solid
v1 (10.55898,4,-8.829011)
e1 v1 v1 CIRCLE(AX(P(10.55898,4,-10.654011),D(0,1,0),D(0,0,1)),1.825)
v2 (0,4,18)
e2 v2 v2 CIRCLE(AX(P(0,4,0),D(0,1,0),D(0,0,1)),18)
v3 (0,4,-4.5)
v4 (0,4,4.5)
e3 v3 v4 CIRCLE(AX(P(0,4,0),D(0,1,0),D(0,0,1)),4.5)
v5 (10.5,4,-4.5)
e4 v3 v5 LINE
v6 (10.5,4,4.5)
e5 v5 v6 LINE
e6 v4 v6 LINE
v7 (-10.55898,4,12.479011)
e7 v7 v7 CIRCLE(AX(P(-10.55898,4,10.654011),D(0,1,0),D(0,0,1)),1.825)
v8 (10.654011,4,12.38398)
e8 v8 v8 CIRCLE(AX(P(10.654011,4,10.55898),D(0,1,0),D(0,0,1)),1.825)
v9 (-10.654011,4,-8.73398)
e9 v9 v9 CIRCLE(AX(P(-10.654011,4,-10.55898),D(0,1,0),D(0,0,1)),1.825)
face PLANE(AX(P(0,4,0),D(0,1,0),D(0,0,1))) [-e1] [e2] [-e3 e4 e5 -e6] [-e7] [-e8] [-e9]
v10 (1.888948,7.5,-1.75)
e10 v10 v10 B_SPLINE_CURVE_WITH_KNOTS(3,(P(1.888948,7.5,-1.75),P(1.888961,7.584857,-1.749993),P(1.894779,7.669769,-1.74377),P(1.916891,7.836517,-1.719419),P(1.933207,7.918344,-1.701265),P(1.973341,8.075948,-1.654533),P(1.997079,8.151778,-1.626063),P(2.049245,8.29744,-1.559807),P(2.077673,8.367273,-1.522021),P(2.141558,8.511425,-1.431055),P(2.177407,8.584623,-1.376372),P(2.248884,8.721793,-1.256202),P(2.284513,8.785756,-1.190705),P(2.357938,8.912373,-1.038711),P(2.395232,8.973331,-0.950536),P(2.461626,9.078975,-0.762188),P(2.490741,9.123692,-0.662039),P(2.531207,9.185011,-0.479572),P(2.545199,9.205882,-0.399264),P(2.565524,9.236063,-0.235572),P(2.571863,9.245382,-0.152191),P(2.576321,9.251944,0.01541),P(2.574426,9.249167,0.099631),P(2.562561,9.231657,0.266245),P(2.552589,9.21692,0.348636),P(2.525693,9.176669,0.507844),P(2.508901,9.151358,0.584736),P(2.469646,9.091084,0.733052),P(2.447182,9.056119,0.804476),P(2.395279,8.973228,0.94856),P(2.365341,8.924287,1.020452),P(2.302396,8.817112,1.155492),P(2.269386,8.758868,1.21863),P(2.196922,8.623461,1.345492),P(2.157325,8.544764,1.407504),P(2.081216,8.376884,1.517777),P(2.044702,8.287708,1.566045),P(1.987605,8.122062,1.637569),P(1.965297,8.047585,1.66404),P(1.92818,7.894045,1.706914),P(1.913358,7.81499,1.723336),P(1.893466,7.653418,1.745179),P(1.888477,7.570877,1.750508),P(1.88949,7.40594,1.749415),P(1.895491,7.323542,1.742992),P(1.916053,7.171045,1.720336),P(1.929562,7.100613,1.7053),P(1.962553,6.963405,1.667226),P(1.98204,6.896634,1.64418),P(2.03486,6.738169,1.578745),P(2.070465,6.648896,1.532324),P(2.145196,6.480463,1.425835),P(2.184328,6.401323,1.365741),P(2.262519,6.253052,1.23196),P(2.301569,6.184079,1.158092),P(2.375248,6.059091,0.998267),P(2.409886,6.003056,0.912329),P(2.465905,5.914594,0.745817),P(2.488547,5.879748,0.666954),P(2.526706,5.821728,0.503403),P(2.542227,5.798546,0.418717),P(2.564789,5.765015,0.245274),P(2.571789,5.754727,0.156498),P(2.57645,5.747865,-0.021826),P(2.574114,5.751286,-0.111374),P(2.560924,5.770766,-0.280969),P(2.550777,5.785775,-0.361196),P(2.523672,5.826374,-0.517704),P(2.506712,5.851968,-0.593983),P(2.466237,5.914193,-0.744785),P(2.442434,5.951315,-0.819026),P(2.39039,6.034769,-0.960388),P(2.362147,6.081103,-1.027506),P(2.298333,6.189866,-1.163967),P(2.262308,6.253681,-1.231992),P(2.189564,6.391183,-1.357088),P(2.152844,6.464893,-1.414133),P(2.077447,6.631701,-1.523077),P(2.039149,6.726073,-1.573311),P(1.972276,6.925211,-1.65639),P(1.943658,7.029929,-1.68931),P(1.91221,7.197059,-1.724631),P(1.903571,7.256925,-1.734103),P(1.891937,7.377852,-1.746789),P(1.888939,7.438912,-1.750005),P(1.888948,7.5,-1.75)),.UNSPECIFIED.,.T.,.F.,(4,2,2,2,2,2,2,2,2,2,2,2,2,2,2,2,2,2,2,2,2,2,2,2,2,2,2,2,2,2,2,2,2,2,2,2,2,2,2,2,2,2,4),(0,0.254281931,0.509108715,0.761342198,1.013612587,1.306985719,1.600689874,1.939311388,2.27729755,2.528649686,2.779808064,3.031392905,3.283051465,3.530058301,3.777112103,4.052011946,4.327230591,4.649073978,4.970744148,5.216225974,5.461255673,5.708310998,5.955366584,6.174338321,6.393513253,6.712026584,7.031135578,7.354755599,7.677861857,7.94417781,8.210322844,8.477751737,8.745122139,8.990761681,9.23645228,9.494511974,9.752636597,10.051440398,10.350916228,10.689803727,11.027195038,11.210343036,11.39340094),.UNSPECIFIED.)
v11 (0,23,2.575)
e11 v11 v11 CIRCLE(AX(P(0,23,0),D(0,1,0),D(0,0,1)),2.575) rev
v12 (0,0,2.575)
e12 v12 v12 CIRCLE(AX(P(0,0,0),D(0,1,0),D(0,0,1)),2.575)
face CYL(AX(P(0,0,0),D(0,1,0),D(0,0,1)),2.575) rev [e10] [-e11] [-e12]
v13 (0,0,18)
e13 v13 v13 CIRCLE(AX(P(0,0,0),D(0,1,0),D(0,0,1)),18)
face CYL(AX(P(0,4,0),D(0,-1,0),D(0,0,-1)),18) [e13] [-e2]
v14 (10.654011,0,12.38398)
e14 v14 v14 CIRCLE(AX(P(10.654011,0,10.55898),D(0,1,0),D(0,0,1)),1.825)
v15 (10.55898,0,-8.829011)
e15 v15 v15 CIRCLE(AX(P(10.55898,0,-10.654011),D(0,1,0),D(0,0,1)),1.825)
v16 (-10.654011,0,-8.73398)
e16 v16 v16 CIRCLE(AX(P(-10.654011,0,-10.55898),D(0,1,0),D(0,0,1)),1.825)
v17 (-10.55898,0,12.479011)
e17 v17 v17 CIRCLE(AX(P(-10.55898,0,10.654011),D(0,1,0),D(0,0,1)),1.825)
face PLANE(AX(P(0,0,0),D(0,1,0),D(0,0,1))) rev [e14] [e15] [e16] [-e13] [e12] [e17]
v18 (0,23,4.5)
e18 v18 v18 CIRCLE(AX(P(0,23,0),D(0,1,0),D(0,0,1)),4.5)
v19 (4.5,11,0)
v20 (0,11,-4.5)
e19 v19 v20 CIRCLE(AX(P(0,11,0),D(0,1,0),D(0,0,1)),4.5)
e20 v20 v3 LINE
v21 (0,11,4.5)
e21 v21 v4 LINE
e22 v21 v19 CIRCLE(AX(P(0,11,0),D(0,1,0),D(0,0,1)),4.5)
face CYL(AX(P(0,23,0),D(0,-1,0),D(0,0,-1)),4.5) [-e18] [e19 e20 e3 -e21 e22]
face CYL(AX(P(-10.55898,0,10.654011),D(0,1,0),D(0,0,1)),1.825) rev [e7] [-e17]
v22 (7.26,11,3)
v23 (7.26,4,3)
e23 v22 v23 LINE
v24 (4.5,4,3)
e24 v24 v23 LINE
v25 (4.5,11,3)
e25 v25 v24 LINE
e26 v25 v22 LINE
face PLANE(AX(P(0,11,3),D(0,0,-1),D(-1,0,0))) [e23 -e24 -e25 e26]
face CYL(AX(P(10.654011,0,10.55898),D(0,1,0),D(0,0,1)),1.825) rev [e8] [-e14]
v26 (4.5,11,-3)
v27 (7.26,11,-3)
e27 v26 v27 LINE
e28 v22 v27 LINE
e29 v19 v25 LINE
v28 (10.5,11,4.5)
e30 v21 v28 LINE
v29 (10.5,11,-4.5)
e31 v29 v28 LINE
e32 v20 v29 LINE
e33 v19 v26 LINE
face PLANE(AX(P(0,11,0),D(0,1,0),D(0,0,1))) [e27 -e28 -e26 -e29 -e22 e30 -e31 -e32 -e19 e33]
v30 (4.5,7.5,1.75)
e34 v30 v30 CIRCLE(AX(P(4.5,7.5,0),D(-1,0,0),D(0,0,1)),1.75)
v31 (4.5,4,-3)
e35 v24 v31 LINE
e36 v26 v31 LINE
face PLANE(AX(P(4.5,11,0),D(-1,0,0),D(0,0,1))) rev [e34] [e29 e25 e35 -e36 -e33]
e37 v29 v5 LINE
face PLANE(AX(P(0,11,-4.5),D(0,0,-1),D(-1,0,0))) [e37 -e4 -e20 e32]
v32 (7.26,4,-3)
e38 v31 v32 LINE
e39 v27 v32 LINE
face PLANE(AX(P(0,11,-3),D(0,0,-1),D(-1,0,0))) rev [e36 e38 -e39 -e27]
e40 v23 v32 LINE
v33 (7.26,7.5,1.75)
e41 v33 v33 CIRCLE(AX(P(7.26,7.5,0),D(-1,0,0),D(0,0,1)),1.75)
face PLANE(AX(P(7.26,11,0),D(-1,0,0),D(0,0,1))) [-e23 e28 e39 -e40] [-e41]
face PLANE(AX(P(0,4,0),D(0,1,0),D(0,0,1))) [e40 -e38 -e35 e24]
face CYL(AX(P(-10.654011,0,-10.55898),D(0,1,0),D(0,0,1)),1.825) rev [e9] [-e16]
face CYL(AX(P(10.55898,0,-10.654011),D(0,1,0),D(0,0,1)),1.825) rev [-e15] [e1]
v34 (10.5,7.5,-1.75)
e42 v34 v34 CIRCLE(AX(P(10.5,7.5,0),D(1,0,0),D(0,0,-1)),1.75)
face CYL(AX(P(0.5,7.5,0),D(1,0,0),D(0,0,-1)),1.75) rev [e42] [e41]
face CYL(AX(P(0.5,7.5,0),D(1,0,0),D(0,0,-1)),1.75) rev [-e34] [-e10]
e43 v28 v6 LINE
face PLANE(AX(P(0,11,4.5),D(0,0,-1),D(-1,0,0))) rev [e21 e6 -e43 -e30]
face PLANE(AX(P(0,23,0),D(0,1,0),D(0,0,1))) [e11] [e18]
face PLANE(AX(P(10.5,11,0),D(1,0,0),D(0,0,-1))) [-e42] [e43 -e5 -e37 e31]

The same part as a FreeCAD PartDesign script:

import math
import FreeCAD as App
import Part
import Sketcher

V = App.Vector


def add_polygon(sketch, points):
    """Adds a closed chain of lines whose ends are joined by coincident constraints."""
    first, n = sketch.GeometryCount, len(points)
    for a, b in zip(points, points[1:] + points[:1]):
        sketch.addGeometry(Part.LineSegment(App.Vector(*a, 0), App.Vector(*b, 0)), False)
    for i in range(n):
        sketch.addConstraint(Sketcher.Constraint("Coincident", first + i, 2, first + (i + 1) % n, 1))

doc = App.newDocument("Part")
body = doc.addObject("PartDesign::Body", "Body")

# Sketch on XZ plane
sketch1 = doc.addObject("Sketcher::SketchObject", "Sketch")
body.addObject(sketch1)
sketch1.AttachmentSupport = (doc.XZ_Plane, [""])
sketch1.MapMode = "FlatFace"
sketch1.addGeometry(Part.Circle(V(0, 0, 0), V(0, 0, 1), 18), False)
sketch1.addConstraint([
    Sketcher.Constraint("Coincident", 0, 3, -1, 1),
    Sketcher.Constraint("Diameter", 0, 36.0),
])
pad1 = doc.addObject("PartDesign::Pad", "Pad")
body.addObject(pad1)
pad1.Profile = sketch1
pad1.Length = 4
pad1.Reversed = True

# Sketch on XZ plane
sketch2 = doc.addObject("Sketcher::SketchObject", "Sketch001")
body.addObject(sketch2)
sketch2.AttachmentSupport = (doc.XZ_Plane, [""])
sketch2.MapMode = "FlatFace"
sketch2.AttachmentOffset = App.Placement(V(0, 0, -4), App.Rotation())
sketch2.addGeometry([
    Part.Circle(V(-10.7, -10.6, 0), V(0, 0, 1), 1.8),  # 0
    Part.Circle(V(10.6, -10.7, 0), V(0, 0, 1), 1.8),  # 1
    Part.Circle(V(10.7, 10.6, 0), V(0, 0, 1), 1.8),  # 2
    Part.Circle(V(0, 0, 0), V(0, 0, 1), 2.6),  # 3
    Part.Circle(V(-10.6, 10.7, 0), V(0, 0, 1), 1.8),  # 4
], False)
sketch2.addConstraint([
    Sketcher.Constraint("Coincident", 3, 3, -1, 1),
    Sketcher.Constraint("Equal", 0, 1),
    Sketcher.Constraint("Equal", 1, 2),
    Sketcher.Constraint("Equal", 2, 4),
    Sketcher.Constraint("Symmetric", 0, 3, 2, 3, -1, 1),
    Sketcher.Constraint("Symmetric", 1, 3, 4, 3, -1, 1),
    Sketcher.Constraint("Diameter", 0, 3.65),
    Sketcher.Constraint("Diameter", 3, 5.15),
    Sketcher.Constraint("DistanceX", 0, 3, -1, 1, 10.654011),
    Sketcher.Constraint("DistanceY", 0, 3, -1, 1, 10.55898),
    Sketcher.Constraint("DistanceX", -1, 1, 1, 3, 10.55898),
    Sketcher.Constraint("DistanceY", 1, 3, -1, 1, 10.654011),
])
pocket1 = doc.addObject("PartDesign::Pocket", "Pocket")
body.addObject(pocket1)
pocket1.Profile = sketch2
pocket1.Type = "ThroughAll"
pocket1.Reversed = True

# Sketch on XZ plane
sketch3 = doc.addObject("Sketcher::SketchObject", "Sketch002")
body.addObject(sketch3)
sketch3.AttachmentSupport = (doc.XZ_Plane, [""])
sketch3.MapMode = "FlatFace"
sketch3.AttachmentOffset = App.Placement(V(0, 0, -23), App.Rotation())
sketch3.addGeometry([
    Part.Circle(V(0, 0, 0), V(0, 0, 1), 4.5),
    Part.Circle(V(0, 0, 0), V(0, 0, 1), 2.6),
], False)
sketch3.addConstraint([
    Sketcher.Constraint("Coincident", 0, 3, -1, 1),
    Sketcher.Constraint("Coincident", 1, 3, -1, 1),
    Sketcher.Constraint("Diameter", 0, 9.0),
    Sketcher.Constraint("Diameter", 1, 5.15),
])
pad2 = doc.addObject("PartDesign::Pad", "Pad001")
body.addObject(pad2)
pad2.Profile = sketch3
pad2.Length = 19

# Sketch on XZ plane
sketch4 = doc.addObject("Sketcher::SketchObject", "Sketch003")
body.addObject(sketch4)
sketch4.AttachmentSupport = (doc.XZ_Plane, [""])
sketch4.MapMode = "FlatFace"
sketch4.AttachmentOffset = App.Placement(V(0, 0, -11), App.Rotation())
sketch4.addGeometry([
    Part.ArcOfCircle(Part.Circle(V(0, 0, 0), V(0, 0, 1), 4.5), math.radians(-90), math.radians(0)),  # 0
    Part.LineSegment(V(4.5, 0, 0), V(4.5, -4.5, 0)),  # 1
    Part.LineSegment(V(4.5, -4.5, 0), V(0, -4.5, 0)),  # 2
    Part.ArcOfCircle(Part.Circle(V(0, 0, 0), V(0, 0, 1), 4.5), math.radians(0), math.radians(90)),  # 3
    Part.LineSegment(V(0, 4.5, 0), V(4.5, 4.5, 0)),  # 4
    Part.LineSegment(V(4.5, 4.5, 0), V(4.5, 0, 0)),  # 5
], False)
sketch4.addConstraint([
    Sketcher.Constraint("Tangent", 0, 2, 1, 1),
    Sketcher.Constraint("Coincident", 1, 2, 2, 1),
    Sketcher.Constraint("Tangent", 2, 2, 0, 1),
    Sketcher.Constraint("Tangent", 3, 2, 4, 1),
    Sketcher.Constraint("Coincident", 4, 2, 5, 1),
    Sketcher.Constraint("Tangent", 5, 2, 3, 1),
    Sketcher.Constraint("Vertical", 1),
    Sketcher.Constraint("Horizontal", 2),
    Sketcher.Constraint("Horizontal", 4),
    Sketcher.Constraint("Vertical", 5),
    Sketcher.Constraint("Coincident", 0, 3, -1, 1),
    Sketcher.Constraint("Coincident", 3, 3, -1, 1),
    Sketcher.Constraint("Equal", 0, 3),
    Sketcher.Constraint("Radius", 0, 4.5),
])
pad3 = doc.addObject("PartDesign::Pad", "Pad002")
body.addObject(pad3)
pad3.Profile = sketch4
pad3.Length = 7

# Sketch on XZ plane
sketch5 = doc.addObject("Sketcher::SketchObject", "Sketch004")
body.addObject(sketch5)
sketch5.AttachmentSupport = (doc.XZ_Plane, [""])
sketch5.MapMode = "FlatFace"
sketch5.AttachmentOffset = App.Placement(V(0, 0, -4), App.Rotation())
add_polygon(sketch5, [(4.5, -4.5), (4.5, -3), (7.3, -3), (7.3, 3), (4.5, 3), (4.5, 4.5), (10.5, 4.5), (10.5, -4.5)])  # lines 0-7
sketch5.addConstraint([
    Sketcher.Constraint("Vertical", 0),
    Sketcher.Constraint("Horizontal", 1),
    Sketcher.Constraint("Vertical", 2),
    Sketcher.Constraint("Horizontal", 3),
    Sketcher.Constraint("Vertical", 4),
    Sketcher.Constraint("Horizontal", 5),
    Sketcher.Constraint("Vertical", 6),
    Sketcher.Constraint("Horizontal", 7),
    Sketcher.Constraint("Symmetric", 0, 2, 3, 2, -1),
    Sketcher.Constraint("Equal", 7, 2),
    Sketcher.Constraint("Equal", 0, 4),
    Sketcher.Constraint("DistanceX", 5, 1, 5, 2, 6.0),
    Sketcher.Constraint("DistanceY", 6, 2, 6, 1, 9.0),
    Sketcher.Constraint("DistanceX", 1, 1, 1, 2, 2.76),
    Sketcher.Constraint("DistanceX", -1, 1, 0, 2, 4.5),
])
pad4 = doc.addObject("PartDesign::Pad", "Pad003")
body.addObject(pad4)
pad4.Profile = sketch5
pad4.Length = 7
pad4.Reversed = True

# Sketch on YZ plane
sketch6 = doc.addObject("Sketcher::SketchObject", "Sketch005")
body.addObject(sketch6)
sketch6.AttachmentSupport = (doc.YZ_Plane, [""])
sketch6.MapMode = "FlatFace"
sketch6.AttachmentOffset = App.Placement(V(0, 0, 10.5), App.Rotation())
sketch6.addGeometry(Part.Circle(V(7.5, 0, 0), V(0, 0, 1), 1.8), False)
sketch6.addConstraint([
    Sketcher.Constraint("PointOnObject", 0, 3, -1),
    Sketcher.Constraint("Diameter", 0, 3.5),
    Sketcher.Constraint("DistanceX", -1, 1, 0, 3, 7.5),
])
pocket2 = doc.addObject("PartDesign::Pocket", "Pocket001")
body.addObject(pocket2)
pocket2.Profile = sketch6
pocket2.Length = 10

doc.recompute()
